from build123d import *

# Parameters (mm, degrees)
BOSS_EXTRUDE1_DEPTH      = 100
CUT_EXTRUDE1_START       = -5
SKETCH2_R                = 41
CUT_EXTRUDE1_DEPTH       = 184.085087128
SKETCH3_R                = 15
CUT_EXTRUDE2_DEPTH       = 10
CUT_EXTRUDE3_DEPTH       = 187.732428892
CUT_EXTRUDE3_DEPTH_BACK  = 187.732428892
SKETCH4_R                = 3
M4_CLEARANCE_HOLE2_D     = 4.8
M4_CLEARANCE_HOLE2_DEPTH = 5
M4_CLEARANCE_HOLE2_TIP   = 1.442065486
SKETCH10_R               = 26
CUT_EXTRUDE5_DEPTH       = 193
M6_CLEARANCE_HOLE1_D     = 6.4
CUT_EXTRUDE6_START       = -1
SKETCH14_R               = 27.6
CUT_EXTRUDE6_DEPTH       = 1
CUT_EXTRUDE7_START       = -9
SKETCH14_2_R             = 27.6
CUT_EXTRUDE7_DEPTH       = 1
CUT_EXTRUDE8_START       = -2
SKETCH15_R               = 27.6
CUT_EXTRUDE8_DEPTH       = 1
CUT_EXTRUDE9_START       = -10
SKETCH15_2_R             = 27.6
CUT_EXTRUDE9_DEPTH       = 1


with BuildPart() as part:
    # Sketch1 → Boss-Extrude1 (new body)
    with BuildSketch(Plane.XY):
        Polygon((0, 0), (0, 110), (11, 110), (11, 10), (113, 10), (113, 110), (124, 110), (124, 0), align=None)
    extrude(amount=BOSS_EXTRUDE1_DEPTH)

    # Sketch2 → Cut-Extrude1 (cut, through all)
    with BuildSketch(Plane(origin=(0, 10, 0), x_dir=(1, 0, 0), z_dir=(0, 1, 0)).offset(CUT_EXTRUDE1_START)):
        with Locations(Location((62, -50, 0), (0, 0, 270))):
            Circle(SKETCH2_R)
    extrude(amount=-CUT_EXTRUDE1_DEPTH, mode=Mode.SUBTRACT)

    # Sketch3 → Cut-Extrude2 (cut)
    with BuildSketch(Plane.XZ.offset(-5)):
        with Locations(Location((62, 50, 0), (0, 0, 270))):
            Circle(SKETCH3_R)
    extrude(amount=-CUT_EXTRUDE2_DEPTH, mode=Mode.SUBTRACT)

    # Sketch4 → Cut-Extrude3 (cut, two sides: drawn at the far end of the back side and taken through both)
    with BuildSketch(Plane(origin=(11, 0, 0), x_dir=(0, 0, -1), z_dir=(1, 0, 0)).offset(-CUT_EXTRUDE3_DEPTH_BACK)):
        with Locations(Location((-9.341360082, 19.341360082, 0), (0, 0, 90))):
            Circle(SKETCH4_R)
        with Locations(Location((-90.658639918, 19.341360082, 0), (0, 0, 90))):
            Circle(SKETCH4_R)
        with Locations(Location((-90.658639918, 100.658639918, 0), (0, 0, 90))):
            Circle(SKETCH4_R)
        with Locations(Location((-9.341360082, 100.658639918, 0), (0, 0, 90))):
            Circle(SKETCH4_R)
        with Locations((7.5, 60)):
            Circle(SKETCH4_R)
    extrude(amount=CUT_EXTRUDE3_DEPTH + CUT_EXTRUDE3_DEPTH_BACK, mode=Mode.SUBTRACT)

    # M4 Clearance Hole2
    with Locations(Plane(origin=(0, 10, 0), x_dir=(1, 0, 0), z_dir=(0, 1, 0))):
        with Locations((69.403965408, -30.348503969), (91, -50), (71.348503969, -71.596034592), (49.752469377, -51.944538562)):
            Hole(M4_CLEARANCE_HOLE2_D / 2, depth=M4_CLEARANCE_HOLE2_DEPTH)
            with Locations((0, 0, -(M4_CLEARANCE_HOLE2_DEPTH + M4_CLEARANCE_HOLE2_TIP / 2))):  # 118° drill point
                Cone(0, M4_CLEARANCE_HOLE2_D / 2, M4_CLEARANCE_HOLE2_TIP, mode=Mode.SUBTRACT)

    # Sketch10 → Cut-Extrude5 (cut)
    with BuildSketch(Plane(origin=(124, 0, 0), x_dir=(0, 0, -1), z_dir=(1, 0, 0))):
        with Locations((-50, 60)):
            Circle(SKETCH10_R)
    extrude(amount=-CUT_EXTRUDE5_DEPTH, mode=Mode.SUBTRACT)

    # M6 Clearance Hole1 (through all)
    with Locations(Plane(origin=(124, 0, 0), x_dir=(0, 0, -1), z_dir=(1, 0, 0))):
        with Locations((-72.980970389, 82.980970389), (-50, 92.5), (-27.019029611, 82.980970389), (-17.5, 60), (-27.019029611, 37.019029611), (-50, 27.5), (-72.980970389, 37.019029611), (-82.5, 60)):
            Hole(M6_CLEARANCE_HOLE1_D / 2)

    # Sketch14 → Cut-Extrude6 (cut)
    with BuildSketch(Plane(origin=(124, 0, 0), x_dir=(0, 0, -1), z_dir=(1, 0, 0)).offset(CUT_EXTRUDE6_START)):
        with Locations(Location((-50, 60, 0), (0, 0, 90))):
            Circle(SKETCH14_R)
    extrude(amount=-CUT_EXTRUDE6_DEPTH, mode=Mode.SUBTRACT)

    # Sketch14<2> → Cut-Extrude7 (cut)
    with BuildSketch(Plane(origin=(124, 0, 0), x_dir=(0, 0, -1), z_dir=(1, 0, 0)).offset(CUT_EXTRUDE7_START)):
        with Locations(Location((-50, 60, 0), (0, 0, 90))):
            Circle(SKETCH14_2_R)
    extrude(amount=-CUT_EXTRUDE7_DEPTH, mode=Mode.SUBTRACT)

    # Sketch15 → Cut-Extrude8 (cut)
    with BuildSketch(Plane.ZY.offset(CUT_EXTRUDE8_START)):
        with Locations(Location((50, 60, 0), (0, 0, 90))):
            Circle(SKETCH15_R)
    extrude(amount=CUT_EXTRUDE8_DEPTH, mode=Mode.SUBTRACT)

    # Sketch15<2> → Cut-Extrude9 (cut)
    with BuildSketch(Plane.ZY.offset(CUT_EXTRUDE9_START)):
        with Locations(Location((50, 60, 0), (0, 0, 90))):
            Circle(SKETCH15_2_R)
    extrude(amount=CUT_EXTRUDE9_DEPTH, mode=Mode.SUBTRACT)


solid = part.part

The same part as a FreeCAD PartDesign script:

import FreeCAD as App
import Part
import Sketcher

V = App.Vector
Q = App.Units.Quantity


def add_polygon(sketch, points):
    """Adds a closed chain of lines whose ends are joined by coincident constraints."""
    first, n = sketch.GeometryCount, len(points)
    for a, b in zip(points, points[1:] + points[:1]):
        sketch.addGeometry(Part.LineSegment(App.Vector(*a, 0), App.Vector(*b, 0)), False)
    for i in range(n):
        sketch.addConstraint(Sketcher.Constraint("Coincident", first + i, 2, first + (i + 1) % n, 1))

doc = App.newDocument("Part")
body = doc.addObject("PartDesign::Body", "Body")

sketch1 = body.newObject("Sketcher::SketchObject", "Sketch")
sketch1.AttachmentSupport = (doc.getObject("XY_Plane"), [""])
sketch1.MapMode = "FlatFace"
add_polygon(sketch1, [(0, 110), (0, 0), (124, 0), (124, 110), (113, 110), (113, 10), (11, 10), (11, 110)])
sketch1.addConstraint(Sketcher.Constraint("Vertical", 0))
sketch1.addConstraint(Sketcher.Constraint("Horizontal", 1))
sketch1.addConstraint(Sketcher.Constraint("Vertical", 2))
sketch1.addConstraint(Sketcher.Constraint("Horizontal", 3))
sketch1.addConstraint(Sketcher.Constraint("Vertical", 4))
sketch1.addConstraint(Sketcher.Constraint("Horizontal", 5))
sketch1.addConstraint(Sketcher.Constraint("Vertical", 6))
sketch1.addConstraint(Sketcher.Constraint("Horizontal", 7))
sketch1.addConstraint(Sketcher.Constraint("Coincident", 0, 2, -1, 1))
sketch1.addConstraint(Sketcher.Constraint("Horizontal", 3, 2, 6, 2))
sketch1.addConstraint(Sketcher.Constraint("Equal", 3, 7))
sketch1.addConstraint(Sketcher.Constraint("DistanceX", 1, 1, 1, 2, Q("124 mm")))
sketch1.addConstraint(Sketcher.Constraint("DistanceX", 3, 2, 3, 1, Q("11 mm")))
sketch1.addConstraint(Sketcher.Constraint("DistanceY", 0, 2, 0, 1, Q("110 mm")))
sketch1.addConstraint(Sketcher.Constraint("DistanceY", 4, 2, 4, 1, Q("100 mm")))
pad1 = body.newObject("PartDesign::Pad", "Pad")
pad1.Profile = sketch1
pad1.Length = 100

sketch2 = body.newObject("Sketcher::SketchObject", "Sketch001")
sketch2.AttachmentSupport = (doc.getObject("XZ_Plane"), [""])
sketch2.MapMode = "FlatFace"
sketch2.AttachmentOffset = App.Placement(V(0, 0, -5), App.Rotation())
sketch2.addGeometry(Part.Circle(V(62, 50, 0), V(0, 0, 1), 41), False)
sketch2.addConstraint(Sketcher.Constraint("Diameter", 0, Q("82 mm")))
sketch2.addConstraint(Sketcher.Constraint("DistanceX", -1, 1, 0, 3, Q("62 mm")))
sketch2.addConstraint(Sketcher.Constraint("DistanceY", -1, 1, 0, 3, Q("50 mm")))
pocket1 = body.newObject("PartDesign::Pocket", "Pocket")
pocket1.Profile = sketch2
pocket1.Type = "ThroughAll"
pocket1.Reversed = True

sketch3 = body.newObject("Sketcher::SketchObject", "Sketch002")
sketch3.AttachmentSupport = (doc.getObject("XZ_Plane"), [""])
sketch3.MapMode = "FlatFace"
sketch3.AttachmentOffset = App.Placement(V(0, 0, -5), App.Rotation())
sketch3.addGeometry(Part.Circle(V(62, 50, 0), V(0, 0, 1), 15), False)
sketch3.addConstraint(Sketcher.Constraint("Diameter", 0, Q("30 mm")))
sketch3.addConstraint(Sketcher.Constraint("DistanceX", -1, 1, 0, 3, Q("62 mm")))
sketch3.addConstraint(Sketcher.Constraint("DistanceY", -1, 1, 0, 3, Q("50 mm")))
pocket2 = body.newObject("PartDesign::Pocket", "Pocket001")
pocket2.Profile = sketch3
pocket2.Length = 10

sketch4 = body.newObject("Sketcher::SketchObject", "Sketch003")
sketch4.AttachmentSupport = (doc.getObject("YZ_Plane"), [""])
sketch4.MapMode = "FlatFace"
sketch4.AttachmentOffset = App.Placement(V(0, 0, 11), App.Rotation())
sketch4.addGeometry(Part.Circle(V(19.34136, 9.34136, 0), V(0, 0, 1), 3), False)
sketch4.addGeometry(Part.Circle(V(19.34136, 90.65864, 0), V(0, 0, 1), 3), False)
sketch4.addGeometry(Part.Circle(V(100.65864, 90.65864, 0), V(0, 0, 1), 3), False)
sketch4.addGeometry(Part.Circle(V(100.65864, 9.34136, 0), V(0, 0, 1), 3), False)
sketch4.addGeometry(Part.Circle(V(60, -7.5, 0), V(0, 0, 1), 3), False)
sketch4.addConstraint(Sketcher.Constraint("Equal", 0, 1))
sketch4.addConstraint(Sketcher.Constraint("Equal", 1, 2))
sketch4.addConstraint(Sketcher.Constraint("Equal", 2, 3))
sketch4.addConstraint(Sketcher.Constraint("Equal", 3, 4))
sketch4.addConstraint(Sketcher.Constraint("Horizontal", 1, 3, 2, 3))
sketch4.addConstraint(Sketcher.Constraint("Horizontal", 0, 3, 3, 3))
sketch4.addConstraint(Sketcher.Constraint("Vertical", 0, 3, 1, 3))
sketch4.addConstraint(Sketcher.Constraint("Vertical", 2, 3, 3, 3))
sketch4.addConstraint(Sketcher.Constraint("Diameter", 0, Q("6 mm")))
sketch4.addConstraint(Sketcher.Constraint("DistanceX", -1, 1, 4, 3, Q("60 mm")))
sketch4.addConstraint(Sketcher.Constraint("DistanceY", 4, 3, -1, 1, Q("7.5 mm")))
sketch4.addConstraint(Sketcher.Constraint("DistanceX", -1, 1, 0, 3, Q("19.34136 mm")))
sketch4.addConstraint(Sketcher.Constraint("DistanceY", -1, 1, 0, 3, Q("9.34136 mm")))
sketch4.addConstraint(Sketcher.Constraint("DistanceY", -1, 1, 1, 3, Q("90.65864 mm")))
sketch4.addConstraint(Sketcher.Constraint("DistanceX", -1, 1, 2, 3, Q("100.65864 mm")))
pocket3 = body.newObject("PartDesign::Pocket", "Pocket002")
pocket3.Profile = sketch4
pocket3.Type = "ThroughAll"
pocket3.Midplane = True

sketch5 = body.newObject("Sketcher::SketchObject", "Sketch004")
sketch5.AttachmentSupport = (doc.getObject("XZ_Plane"), [""])
sketch5.MapMode = "FlatFace"
sketch5.AttachmentOffset = App.Placement(V(0, 0, -10), App.Rotation())
sketch5.addGeometry(Part.Circle(V(69.403965, 30.348504, 0), V(0, 0, 1), 2.4), False)
sketch5.addGeometry(Part.Circle(V(91, 50, 0), V(0, 0, 1), 2.4), False)
sketch5.addGeometry(Part.Circle(V(71.348504, 71.596035, 0), V(0, 0, 1), 2.4), False)
sketch5.addGeometry(Part.Circle(V(49.752469, 51.944539, 0), V(0, 0, 1), 2.4), False)
sketch5.addConstraint(Sketcher.Constraint("Equal", 0, 1))
sketch5.addConstraint(Sketcher.Constraint("Equal", 1, 2))
sketch5.addConstraint(Sketcher.Constraint("Equal", 2, 3))
sketch5.addConstraint(Sketcher.Constraint("Diameter", 0, Q("4.8 mm")))
sketch5.addConstraint(Sketcher.Constraint("DistanceX", -1, 1, 1, 3, Q("91 mm")))
sketch5.addConstraint(Sketcher.Constraint("DistanceY", -1, 1, 1, 3, Q("50 mm")))
sketch5.addConstraint(Sketcher.Constraint("DistanceX", -1, 1, 3, 3, Q("49.752469 mm")))
sketch5.addConstraint(Sketcher.Constraint("DistanceY", -1, 1, 3, 3, Q("51.944539 mm")))
sketch5.addConstraint(Sketcher.Constraint("DistanceX", 0, 3, 2, 3, Q("1.944539 mm")))
sketch5.addConstraint(Sketcher.Constraint("DistanceY", 0, 3, 2, 3, Q("41.247531 mm")))
sketch5.addConstraint(Sketcher.Constraint("DistanceX", -1, 1, 0, 3, Q("69.403965 mm")))
sketch5.addConstraint(Sketcher.Constraint("DistanceY", -1, 1, 0, 3, Q("30.348504 mm")))
doc.recompute()
hole = body.newObject("PartDesign::Hole", "Hole")
hole.Profile = sketch5
hole.ThreadType = "None"
hole.Diameter = 4.8
hole.DepthType = "Dimension"
hole.Depth = 5
hole.DrillPoint = "Angled"
hole.DrillPointAngle = 118
hole.Reversed = True

sketch6 = body.newObject("Sketcher::SketchObject", "Sketch005")
sketch6.AttachmentSupport = (doc.getObject("YZ_Plane"), [""])
sketch6.MapMode = "FlatFace"
sketch6.AttachmentOffset = App.Placement(V(0, 0, 124), App.Rotation())
sketch6.addGeometry(Part.Circle(V(60, 50, 0), V(0, 0, 1), 26), False)
sketch6.addConstraint(Sketcher.Constraint("Diameter", 0, Q("52 mm")))
sketch6.addConstraint(Sketcher.Constraint("DistanceX", -1, 1, 0, 3, Q("60 mm")))
sketch6.addConstraint(Sketcher.Constraint("DistanceY", -1, 1, 0, 3, Q("50 mm")))
pocket4 = body.newObject("PartDesign::Pocket", "Pocket003")
pocket4.Profile = sketch6
pocket4.Length = 193

sketch7 = body.newObject("Sketcher::SketchObject", "Sketch006")
sketch7.AttachmentSupport = (doc.getObject("YZ_Plane"), [""])
sketch7.MapMode = "FlatFace"
sketch7.AttachmentOffset = App.Placement(V(0, 0, 124), App.Rotation())
sketch7.addGeometry(Part.Circle(V(82.98097, 72.98097, 0), V(0, 0, 1), 3.2), False)
sketch7.addGeometry(Part.Circle(V(92.5, 50, 0), V(0, 0, 1), 3.2), False)
sketch7.addGeometry(Part.Circle(V(82.98097, 27.01903, 0), V(0, 0, 1), 3.2), False)
sketch7.addGeometry(Part.Circle(V(60, 17.5, 0), V(0, 0, 1), 3.2), False)
sketch7.addGeometry(Part.Circle(V(37.01903, 27.01903, 0), V(0, 0, 1), 3.2), False)
sketch7.addGeometry(Part.Circle(V(27.5, 50, 0), V(0, 0, 1), 3.2), False)
sketch7.addGeometry(Part.Circle(V(37.01903, 72.98097, 0), V(0, 0, 1), 3.2), False)
sketch7.addGeometry(Part.Circle(V(60, 82.5, 0), V(0, 0, 1), 3.2), False)
sketch7.addConstraint(Sketcher.Constraint("Equal", 0, 1))
sketch7.addConstraint(Sketcher.Constraint("Equal", 1, 2))
sketch7.addConstraint(Sketcher.Constraint("Equal", 2, 3))
sketch7.addConstraint(Sketcher.Constraint("Equal", 3, 4))
sketch7.addConstraint(Sketcher.Constraint("Equal", 4, 5))
sketch7.addConstraint(Sketcher.Constraint("Equal", 5, 6))
sketch7.addConstraint(Sketcher.Constraint("Equal", 6, 7))
sketch7.addConstraint(Sketcher.Constraint("Horizontal", 2, 3, 4, 3))
sketch7.addConstraint(Sketcher.Constraint("Horizontal", 1, 3, 5, 3))
sketch7.addConstraint(Sketcher.Constraint("Horizontal", 0, 3, 6, 3))
sketch7.addConstraint(Sketcher.Constraint("Vertical", 0, 3, 2, 3))
sketch7.addConstraint(Sketcher.Constraint("Vertical", 4, 3, 6, 3))
sketch7.addConstraint(Sketcher.Constraint("Vertical", 3, 3, 7, 3))
sketch7.addConstraint(Sketcher.Constraint("Diameter", 0, Q("6.4 mm")))
sketch7.addConstraint(Sketcher.Constraint("DistanceY", -1, 1, 1, 3, Q("50 mm")))
sketch7.addConstraint(Sketcher.Constraint("DistanceX", -1, 1, 3, 3, Q("60 mm")))
sketch7.addConstraint(Sketcher.Constraint("DistanceX", 5, 3, 1, 3, Q("65 mm")))
sketch7.addConstraint(Sketcher.Constraint("DistanceX", -1, 1, 1, 3, Q("92.5 mm")))
sketch7.addConstraint(Sketcher.Constraint("DistanceY", -1, 1, 3, 3, Q("17.5 mm")))
sketch7.addConstraint(Sketcher.Constraint("DistanceY", -1, 1, 7, 3, Q("82.5 mm")))
sketch7.addConstraint(Sketcher.Constraint("DistanceX", -1, 1, 0, 3, Q("82.98097 mm")))
sketch7.addConstraint(Sketcher.Constraint("DistanceY", -1, 1, 0, 3, Q("72.98097 mm")))
sketch7.addConstraint(Sketcher.Constraint("DistanceY", -1, 1, 2, 3, Q("27.01903 mm")))
sketch7.addConstraint(Sketcher.Constraint("DistanceX", -1, 1, 4, 3, Q("37.01903 mm")))
doc.recompute()
hole2 = body.newObject("PartDesign::Hole", "Hole001")
hole2.Profile = sketch7
hole2.ThreadType = "None"
hole2.Diameter = 6.4
hole2.DepthType = "ThroughAll"

sketch8 = body.newObject("Sketcher::SketchObject", "Sketch007")
sketch8.AttachmentSupport = (doc.getObject("YZ_Plane"), [""])
sketch8.MapMode = "FlatFace"
sketch8.AttachmentOffset = App.Placement(V(0, 0, 123), App.Rotation())
sketch8.addGeometry(Part.Circle(V(60, 50, 0), V(0, 0, 1), 27.6), False)
sketch8.addConstraint(Sketcher.Constraint("Diameter", 0, Q("55.2 mm")))
sketch8.addConstraint(Sketcher.Constraint("DistanceX", -1, 1, 0, 3, Q("60 mm")))
sketch8.addConstraint(Sketcher.Constraint("DistanceY", -1, 1, 0, 3, Q("50 mm")))
pocket5 = body.newObject("PartDesign::Pocket", "Pocket004")
pocket5.Profile = sketch8
pocket5.Length = 1

sketch9 = body.newObject("Sketcher::SketchObject", "Sketch008")
sketch9.AttachmentSupport = (doc.getObject("YZ_Plane"), [""])
sketch9.MapMode = "FlatFace"
sketch9.AttachmentOffset = App.Placement(V(0, 0, 115), App.Rotation())
sketch9.addGeometry(Part.Circle(V(60, 50, 0), V(0, 0, 1), 27.6), False)
sketch9.addConstraint(Sketcher.Constraint("Diameter", 0, Q("55.2 mm")))
sketch9.addConstraint(Sketcher.Constraint("DistanceX", -1, 1, 0, 3, Q("60 mm")))
sketch9.addConstraint(Sketcher.Constraint("DistanceY", -1, 1, 0, 3, Q("50 mm")))
pocket6 = body.newObject("PartDesign::Pocket", "Pocket005")
pocket6.Profile = sketch9
pocket6.Length = 1

sketch10 = body.newObject("Sketcher::SketchObject", "Sketch009")
sketch10.AttachmentSupport = (doc.getObject("YZ_Plane"), [""])
sketch10.MapMode = "FlatFace"
sketch10.AttachmentOffset = App.Placement(V(0, 0, 2), App.Rotation())
sketch10.addGeometry(Part.Circle(V(60, 50, 0), V(0, 0, 1), 27.6), False)
sketch10.addConstraint(Sketcher.Constraint("Diameter", 0, Q("55.2 mm")))
sketch10.addConstraint(Sketcher.Constraint("DistanceX", -1, 1, 0, 3, Q("60 mm")))
sketch10.addConstraint(Sketcher.Constraint("DistanceY", -1, 1, 0, 3, Q("50 mm")))
pocket7 = body.newObject("PartDesign::Pocket", "Pocket006")
pocket7.Profile = sketch10
pocket7.Length = 1

sketch11 = body.newObject("Sketcher::SketchObject", "Sketch010")
sketch11.AttachmentSupport = (doc.getObject("YZ_Plane"), [""])
sketch11.MapMode = "FlatFace"
sketch11.AttachmentOffset = App.Placement(V(0, 0, 10), App.Rotation())
sketch11.addGeometry(Part.Circle(V(60, 50, 0), V(0, 0, 1), 27.6), False)
sketch11.addConstraint(Sketcher.Constraint("Diameter", 0, Q("55.2 mm")))
sketch11.addConstraint(Sketcher.Constraint("DistanceX", -1, 1, 0, 3, Q("60 mm")))
sketch11.addConstraint(Sketcher.Constraint("DistanceY", -1, 1, 0, 3, Q("50 mm")))
pocket8 = body.newObject("PartDesign::Pocket", "Pocket007")
pocket8.Profile = sketch11
pocket8.Length = 1

doc.recompute()
